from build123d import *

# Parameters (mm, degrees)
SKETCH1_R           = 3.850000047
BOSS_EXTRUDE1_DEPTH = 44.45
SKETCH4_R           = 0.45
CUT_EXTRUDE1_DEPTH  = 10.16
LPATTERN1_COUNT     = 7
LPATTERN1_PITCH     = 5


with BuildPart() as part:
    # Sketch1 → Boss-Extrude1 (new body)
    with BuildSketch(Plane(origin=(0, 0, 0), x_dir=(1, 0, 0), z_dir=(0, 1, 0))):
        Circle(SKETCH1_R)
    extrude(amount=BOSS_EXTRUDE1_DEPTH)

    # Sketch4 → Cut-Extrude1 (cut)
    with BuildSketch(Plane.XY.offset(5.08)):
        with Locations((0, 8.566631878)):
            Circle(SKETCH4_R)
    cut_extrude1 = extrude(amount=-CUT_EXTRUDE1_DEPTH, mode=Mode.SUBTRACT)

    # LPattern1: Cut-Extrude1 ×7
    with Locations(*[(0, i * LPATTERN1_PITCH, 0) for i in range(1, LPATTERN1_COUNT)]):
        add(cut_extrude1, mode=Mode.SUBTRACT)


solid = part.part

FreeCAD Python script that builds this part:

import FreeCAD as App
import Part
import Sketcher

V = App.Vector

doc = App.newDocument("Part")
params = doc.addObject("Spreadsheet::Sheet", "Params")
for row, (alias, value) in enumerate([
    ("sketch1_diameter", "7.7 mm"),
    ("pad1_length", "44.45 mm"),
    ("sketch2_diameter", "0.9 mm"),
    ("pocket1_length", "10.16 mm"),
    ("linearpattern_pitch", "5 mm"),
], start=1):
    params.set(f"A{row}", alias)
    params.set(f"B{row}", "=" + value)
    params.setAlias(f"B{row}", alias)

body = doc.addObject("PartDesign::Body", "Body")

# Sketch on XZ plane
sketch1 = doc.addObject("Sketcher::SketchObject", "Sketch")
body.addObject(sketch1)
sketch1.AttachmentSupport = (doc.XZ_Plane, [""])
sketch1.MapMode = "FlatFace"
sketch1.addGeometry(Part.Circle(V(0, 0, 0), V(0, 0, 1), 3.9), False)
sketch1.addConstraint(Sketcher.Constraint("Coincident", 0, 3, -1, 1))
sketch1.addConstraint(Sketcher.Constraint("Diameter", 0, 7.7))
sketch1.setExpression("Constraints[1]", "Params.sketch1_diameter")
pad1 = doc.addObject("PartDesign::Pad", "Pad")
body.addObject(pad1)
pad1.Profile = sketch1
pad1.setExpression("Length", "Params.pad1_length")
pad1.Reversed = True

# Sketch on XY plane
sketch2 = doc.addObject("Sketcher::SketchObject", "Sketch001")
body.addObject(sketch2)
sketch2.AttachmentSupport = (doc.XY_Plane, [""])
sketch2.MapMode = "FlatFace"
sketch2.AttachmentOffset = App.Placement(V(0, 0, 5.08), App.Rotation())
sketch2.addGeometry(Part.Circle(V(0, 8.57, 0), V(0, 0, 1), 0.45), False)
sketch2.addConstraint(Sketcher.Constraint("PointOnObject", 0, 3, -2))
sketch2.addConstraint(Sketcher.Constraint("Diameter", 0, 0.9))
sketch2.addConstraint(Sketcher.Constraint("DistanceY", -1, 1, 0, 3, 8.566632))
sketch2.setExpression("Constraints[1]", "Params.sketch2_diameter")
pocket1 = doc.addObject("PartDesign::Pocket", "Pocket")
body.addObject(pocket1)
pocket1.Profile = sketch2
pocket1.setExpression("Length", "Params.pocket1_length")
doc.recompute()

linearpattern = doc.addObject("PartDesign::LinearPattern", "LinearPattern")
body.addObject(linearpattern)
linearpattern.Originals = [pocket1]
linearpattern.Direction = (doc.Y_Axis, [""])
linearpattern.Mode = "offset"
linearpattern.setExpression("Offset", "Params.linearpattern_pitch")
linearpattern.Occurrences = 7
body.Tip = linearpattern

doc.recompute()
